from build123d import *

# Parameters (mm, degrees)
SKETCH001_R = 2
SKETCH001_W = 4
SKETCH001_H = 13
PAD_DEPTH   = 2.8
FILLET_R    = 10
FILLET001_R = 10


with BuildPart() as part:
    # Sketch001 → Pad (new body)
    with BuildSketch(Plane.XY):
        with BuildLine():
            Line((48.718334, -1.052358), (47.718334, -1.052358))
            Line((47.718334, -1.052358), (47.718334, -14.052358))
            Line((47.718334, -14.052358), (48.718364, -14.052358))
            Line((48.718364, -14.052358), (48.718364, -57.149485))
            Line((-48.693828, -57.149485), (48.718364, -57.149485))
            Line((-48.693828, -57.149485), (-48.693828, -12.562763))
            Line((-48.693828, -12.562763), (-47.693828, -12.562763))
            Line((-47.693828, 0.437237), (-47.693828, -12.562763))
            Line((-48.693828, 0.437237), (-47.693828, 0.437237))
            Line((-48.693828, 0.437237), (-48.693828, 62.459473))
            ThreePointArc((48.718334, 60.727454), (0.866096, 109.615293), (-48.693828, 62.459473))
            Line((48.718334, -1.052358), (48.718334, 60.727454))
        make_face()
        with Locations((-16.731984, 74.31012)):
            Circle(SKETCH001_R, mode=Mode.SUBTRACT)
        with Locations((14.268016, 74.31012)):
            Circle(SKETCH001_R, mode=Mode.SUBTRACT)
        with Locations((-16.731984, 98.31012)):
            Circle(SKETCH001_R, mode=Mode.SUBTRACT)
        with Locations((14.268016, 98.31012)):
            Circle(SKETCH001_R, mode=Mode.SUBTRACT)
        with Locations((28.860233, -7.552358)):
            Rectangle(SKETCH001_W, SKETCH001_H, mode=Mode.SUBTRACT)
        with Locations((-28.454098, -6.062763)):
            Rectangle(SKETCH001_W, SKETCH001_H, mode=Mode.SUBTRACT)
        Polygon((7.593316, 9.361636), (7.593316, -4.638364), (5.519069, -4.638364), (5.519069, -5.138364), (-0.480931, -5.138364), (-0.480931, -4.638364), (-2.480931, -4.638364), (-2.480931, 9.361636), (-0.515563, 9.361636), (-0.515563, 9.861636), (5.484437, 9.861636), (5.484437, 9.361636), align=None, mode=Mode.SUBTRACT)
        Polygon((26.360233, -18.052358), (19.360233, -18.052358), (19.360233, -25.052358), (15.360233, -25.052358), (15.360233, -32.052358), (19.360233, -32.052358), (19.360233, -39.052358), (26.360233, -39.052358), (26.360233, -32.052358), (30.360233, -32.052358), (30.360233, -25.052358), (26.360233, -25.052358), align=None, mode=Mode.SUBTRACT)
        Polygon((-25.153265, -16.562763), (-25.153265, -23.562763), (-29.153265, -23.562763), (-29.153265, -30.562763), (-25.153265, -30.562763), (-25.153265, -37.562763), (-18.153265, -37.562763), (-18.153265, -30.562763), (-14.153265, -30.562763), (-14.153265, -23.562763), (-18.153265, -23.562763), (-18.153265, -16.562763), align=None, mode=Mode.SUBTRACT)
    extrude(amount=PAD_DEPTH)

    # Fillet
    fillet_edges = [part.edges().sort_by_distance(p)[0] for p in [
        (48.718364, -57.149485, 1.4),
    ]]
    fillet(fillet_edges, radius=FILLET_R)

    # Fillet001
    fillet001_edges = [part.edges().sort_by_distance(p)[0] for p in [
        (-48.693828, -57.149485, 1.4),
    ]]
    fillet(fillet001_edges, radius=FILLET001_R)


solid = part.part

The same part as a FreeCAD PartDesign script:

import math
import FreeCAD as App
import Part
import Sketcher

V = App.Vector
Q = App.Units.Quantity


def edges_at(feature, points):
    """Names of the edges that pass closest to the given points."""
    edges = feature.Shape.Edges
    near = lambda p: min(range(len(edges)), key=lambda i: edges[i].distToShape(Part.Vertex(*p))[0])
    return sorted({f"Edge{near(p) + 1}" for p in points})


def add_polygon(sketch, points):
    """Adds a closed chain of lines whose ends are joined by coincident constraints."""
    first, n = sketch.GeometryCount, len(points)
    for a, b in zip(points, points[1:] + points[:1]):
        sketch.addGeometry(Part.LineSegment(App.Vector(*a, 0), App.Vector(*b, 0)), False)
    for i in range(n):
        sketch.addConstraint(Sketcher.Constraint("Coincident", first + i, 2, first + (i + 1) % n, 1))

doc = App.newDocument("Part")
body = doc.addObject("PartDesign::Body", "Body")

# Sketch on XY plane
sketch1 = body.newObject("Sketcher::SketchObject", "Sketch")
sketch1.AttachmentSupport = (doc.getObject("XY_Plane"), [""])
sketch1.MapMode = "FlatFace"
sketch1.addGeometry(Part.LineSegment(V(47.7, -1.1, 0), V(48.7, -1.1, 0)), False)  # 0
sketch1.addGeometry(Part.LineSegment(V(48.7, -1.1, 0), V(48.7, 60.7, 0)), False)  # 1
sketch1.addGeometry(Part.ArcOfCircle(Part.Circle(V(0, 60.9, 0), V(0, 0, 1), 48.7), math.radians(0), math.radians(178)), False)  # 2
sketch1.addGeometry(Part.LineSegment(V(-48.7, 62.5, 0), V(-48.7, 0.4, 0)), False)  # 3
sketch1.addGeometry(Part.LineSegment(V(-48.7, 0.4, 0), V(-47.7, 0.4, 0)), False)  # 4
sketch1.addGeometry(Part.LineSegment(V(-47.7, 0.4, 0), V(-47.7, -12.6, 0)), False)  # 5
sketch1.addGeometry(Part.LineSegment(V(-47.7, -12.6, 0), V(-48.7, -12.6, 0)), False)  # 6
sketch1.addGeometry(Part.LineSegment(V(-48.7, -12.6, 0), V(-48.7, -57.1, 0)), False)  # 7
sketch1.addGeometry(Part.LineSegment(V(-48.7, -57.1, 0), V(48.7, -57.1, 0)), False)  # 8
sketch1.addGeometry(Part.LineSegment(V(48.7, -57.1, 0), V(48.7, -14.1, 0)), False)  # 9
sketch1.addGeometry(Part.LineSegment(V(48.7, -14.1, 0), V(47.7, -14.1, 0)), False)  # 10
sketch1.addGeometry(Part.LineSegment(V(47.7, -14.1, 0), V(47.7, -1.1, 0)), False)  # 11
add_polygon(sketch1, [(26.4, -18.1), (26.4, -25.1), (30.4, -25.1), (30.4, -32.1), (26.4, -32.1), (26.4, -39.1), (19.4, -39.1), (19.4, -32.1), (15.4, -32.1), (15.4, -25.1), (19.4, -25.1), (19.4, -18.1)])  # lines 12-23
add_polygon(sketch1, [(26.9, -14.1), (26.9, -1.1), (30.9, -1.1), (30.9, -14.1)])  # lines 24-27
add_polygon(sketch1, [(7.6, 9.4), (7.6, -4.6), (5.5, -4.6), (5.5, -5.1), (-0.5, -5.1), (-0.5, -4.6), (-2.5, -4.6), (-2.5, 9.4), (-0.5, 9.4), (-0.5, 9.9), (5.5, 9.9), (5.5, 9.4)])  # lines 28-39
add_polygon(sketch1, [(-25.2, -16.6), (-18.2, -16.6), (-18.2, -23.6), (-14.2, -23.6), (-14.2, -30.6), (-18.2, -30.6), (-18.2, -37.6), (-25.2, -37.6), (-25.2, -30.6), (-29.2, -30.6), (-29.2, -23.6), (-25.2, -23.6)])  # lines 40-51
add_polygon(sketch1, [(-30.5, -12.6), (-30.5, 0.4), (-26.5, 0.4), (-26.5, -12.6)])  # lines 52-55
sketch1.addGeometry(Part.Circle(V(14.3, 74.3, 0), V(0, 0, 1), 2), False)  # 56
sketch1.addGeometry(Part.Circle(V(14.3, 98.3, 0), V(0, 0, 1), 2), False)  # 57
sketch1.addGeometry(Part.Circle(V(-16.7, 74.3, 0), V(0, 0, 1), 2), False)  # 58
sketch1.addGeometry(Part.Circle(V(-16.7, 98.3, 0), V(0, 0, 1), 2), False)  # 59
sketch1.addConstraint(Sketcher.Constraint("Coincident", 0, 2, 1, 1))
sketch1.addConstraint(Sketcher.Constraint("Coincident", 1, 2, 2, 1))
sketch1.addConstraint(Sketcher.Constraint("Coincident", 2, 2, 3, 1))
sketch1.addConstraint(Sketcher.Constraint("Coincident", 3, 2, 4, 1))
sketch1.addConstraint(Sketcher.Constraint("Coincident", 4, 2, 5, 1))
sketch1.addConstraint(Sketcher.Constraint("Coincident", 5, 2, 6, 1))
sketch1.addConstraint(Sketcher.Constraint("Coincident", 6, 2, 7, 1))
sketch1.addConstraint(Sketcher.Constraint("Coincident", 7, 2, 8, 1))
sketch1.addConstraint(Sketcher.Constraint("Coincident", 8, 2, 9, 1))
sketch1.addConstraint(Sketcher.Constraint("Coincident", 9, 2, 10, 1))
sketch1.addConstraint(Sketcher.Constraint("Coincident", 10, 2, 11, 1))
sketch1.addConstraint(Sketcher.Constraint("Coincident", 11, 2, 0, 1))
sketch1.addConstraint(Sketcher.Constraint("Horizontal", 0))
sketch1.addConstraint(Sketcher.Constraint("Vertical", 1))
sketch1.addConstraint(Sketcher.Constraint("Vertical", 3))
sketch1.addConstraint(Sketcher.Constraint("Horizontal", 4))
sketch1.addConstraint(Sketcher.Constraint("Vertical", 5))
sketch1.addConstraint(Sketcher.Constraint("Horizontal", 6))
sketch1.addConstraint(Sketcher.Constraint("Vertical", 7))
sketch1.addConstraint(Sketcher.Constraint("Horizontal", 8))
sketch1.addConstraint(Sketcher.Constraint("Vertical", 9))
sketch1.addConstraint(Sketcher.Constraint("Horizontal", 10))
sketch1.addConstraint(Sketcher.Constraint("Vertical", 11))
sketch1.addConstraint(Sketcher.Constraint("Vertical", 12))
sketch1.addConstraint(Sketcher.Constraint("Horizontal", 13))
sketch1.addConstraint(Sketcher.Constraint("Vertical", 14))
sketch1.addConstraint(Sketcher.Constraint("Horizontal", 15))
sketch1.addConstraint(Sketcher.Constraint("Vertical", 16))
sketch1.addConstraint(Sketcher.Constraint("Horizontal", 17))
sketch1.addConstraint(Sketcher.Constraint("Vertical", 18))
sketch1.addConstraint(Sketcher.Constraint("Horizontal", 19))
sketch1.addConstraint(Sketcher.Constraint("Vertical", 20))
sketch1.addConstraint(Sketcher.Constraint("Horizontal", 21))
sketch1.addConstraint(Sketcher.Constraint("Vertical", 22))
sketch1.addConstraint(Sketcher.Constraint("Horizontal", 23))
sketch1.addConstraint(Sketcher.Constraint("Vertical", 24))
sketch1.addConstraint(Sketcher.Constraint("Horizontal", 25))
sketch1.addConstraint(Sketcher.Constraint("Vertical", 26))
sketch1.addConstraint(Sketcher.Constraint("Horizontal", 27))
sketch1.addConstraint(Sketcher.Constraint("Vertical", 28))
sketch1.addConstraint(Sketcher.Constraint("Horizontal", 29))
sketch1.addConstraint(Sketcher.Constraint("Vertical", 30))
sketch1.addConstraint(Sketcher.Constraint("Horizontal", 31))
sketch1.addConstraint(Sketcher.Constraint("Vertical", 32))
sketch1.addConstraint(Sketcher.Constraint("Horizontal", 33))
sketch1.addConstraint(Sketcher.Constraint("Vertical", 34))
sketch1.addConstraint(Sketcher.Constraint("Horizontal", 35))
sketch1.addConstraint(Sketcher.Constraint("Vertical", 36))
sketch1.addConstraint(Sketcher.Constraint("Horizontal", 37))
sketch1.addConstraint(Sketcher.Constraint("Vertical", 38))
sketch1.addConstraint(Sketcher.Constraint("Horizontal", 39))
sketch1.addConstraint(Sketcher.Constraint("Horizontal", 40))
sketch1.addConstraint(Sketcher.Constraint("Vertical", 41))
sketch1.addConstraint(Sketcher.Constraint("Horizontal", 42))
sketch1.addConstraint(Sketcher.Constraint("Vertical", 43))
sketch1.addConstraint(Sketcher.Constraint("Horizontal", 44))
sketch1.addConstraint(Sketcher.Constraint("Vertical", 45))
sketch1.addConstraint(Sketcher.Constraint("Horizontal", 46))
sketch1.addConstraint(Sketcher.Constraint("Vertical", 47))
sketch1.addConstraint(Sketcher.Constraint("Horizontal", 48))
sketch1.addConstraint(Sketcher.Constraint("Vertical", 49))
sketch1.addConstraint(Sketcher.Constraint("Horizontal", 50))
sketch1.addConstraint(Sketcher.Constraint("Vertical", 51))
sketch1.addConstraint(Sketcher.Constraint("Vertical", 52))
sketch1.addConstraint(Sketcher.Constraint("Horizontal", 53))
sketch1.addConstraint(Sketcher.Constraint("Vertical", 54))
sketch1.addConstraint(Sketcher.Constraint("Horizontal", 55))
sketch1.addConstraint(Sketcher.Constraint("Equal", 56, 57))
sketch1.addConstraint(Sketcher.Constraint("Equal", 57, 58))
sketch1.addConstraint(Sketcher.Constraint("Equal", 58, 59))
sketch1.addConstraint(Sketcher.Constraint("PointOnObject", 2, 3, -2))
sketch1.addConstraint(Sketcher.Constraint("Horizontal", 56, 3, 58, 3))
sketch1.addConstraint(Sketcher.Constraint("Horizontal", 57, 3, 59, 3))
sketch1.addConstraint(Sketcher.Constraint("Horizontal", 15, 2, 18, 2))
sketch1.addConstraint(Sketcher.Constraint("Horizontal", 13, 2, 20, 2))
sketch1.addConstraint(Sketcher.Constraint("Horizontal", 11, 2, 24, 2))
sketch1.addConstraint(Sketcher.Constraint("Horizontal", 10, 2, 26, 2))
sketch1.addConstraint(Sketcher.Constraint("Horizontal", 29, 2, 32, 2))
sketch1.addConstraint(Sketcher.Constraint("Horizontal", 35, 2, 38, 2))
sketch1.addConstraint(Sketcher.Constraint("Horizontal", 44, 2, 47, 2))
sketch1.addConstraint(Sketcher.Constraint("Horizontal", 42, 2, 49, 2))
sketch1.addConstraint(Sketcher.Constraint("Horizontal", 4, 2, 52, 2))
sketch1.addConstraint(Sketcher.Constraint("Horizontal", 6, 2, 54, 2))
sketch1.addConstraint(Sketcher.Constraint("Vertical", 56, 3, 57, 3))
sketch1.addConstraint(Sketcher.Constraint("Vertical", 58, 3, 59, 3))
sketch1.addConstraint(Sketcher.Constraint("Vertical", 3, 2, 6, 2))
sketch1.addConstraint(Sketcher.Constraint("Vertical", 12, 2, 15, 2))
sketch1.addConstraint(Sketcher.Constraint("Vertical", 18, 2, 21, 2))
sketch1.addConstraint(Sketcher.Constraint("Vertical", 41, 2, 44, 2))
sketch1.addConstraint(Sketcher.Constraint("Vertical", 47, 2, 50, 2))
sketch1.addConstraint(Sketcher.Constraint("Equal", 0, 4))
sketch1.addConstraint(Sketcher.Constraint("Equal", 15, 19))
sketch1.addConstraint(Sketcher.Constraint("Equal", 21, 25))
sketch1.addConstraint(Sketcher.Constraint("Equal", 31, 37))
sketch1.addConstraint(Sketcher.Constraint("Equal", 23, 40))
sketch1.addConstraint(Sketcher.Constraint("Equal", 27, 42))
sketch1.addConstraint(Sketcher.Constraint("Equal", 44, 48))
sketch1.addConstraint(Sketcher.Constraint("Equal", 50, 53))
sketch1.addConstraint(Sketcher.Constraint("Equal", 5, 11))
sketch1.addConstraint(Sketcher.Constraint("Equal", 46, 12))
sketch1.addConstraint(Sketcher.Constraint("Equal", 12, 14))
sketch1.addConstraint(Sketcher.Constraint("Equal", 14, 16))
sketch1.addConstraint(Sketcher.Constraint("Equal", 32, 36))
sketch1.addConstraint(Sketcher.Constraint("Equal", 22, 41))
sketch1.addConstraint(Sketcher.Constraint("Equal", 41, 43))
sketch1.addConstraint(Sketcher.Constraint("Equal", 43, 45))
sketch1.addConstraint(Sketcher.Constraint("Diameter", 56, Q("4 mm")))
sketch1.addConstraint(Sketcher.Constraint("DistanceX", 0, 1, 0, 2, Q("1 mm")))
sketch1.addConstraint(Sketcher.Constraint("DistanceX", 13, 1, 13, 2, Q("4 mm")))
sketch1.addConstraint(Sketcher.Constraint("DistanceX", 17, 2, 17, 1, Q("7 mm")))
sketch1.addConstraint(Sketcher.Constraint("DistanceX", 31, 2, 31, 1, Q("6 mm")))
sketch1.addConstraint(Sketcher.Constraint("DistanceX", 33, 2, 33, 1, Q("2 mm")))
sketch1.addConstraint(Sketcher.Constraint("DistanceY", 5, 2, 5, 1, Q("13 mm")))
sketch1.addConstraint(Sketcher.Constraint("DistanceY", 28, 2, 28, 1, Q("14 mm")))
sketch1.addConstraint(Sketcher.Constraint("DistanceY", 30, 2, 30, 1, Q("0.5 mm")))
sketch1.addConstraint(Sketcher.Constraint("Radius", 2, Q("48.718655 mm")))
sketch1.addConstraint(Sketcher.Constraint("DistanceX", 10, 2, 10, 1, Q("1.00003 mm")))
sketch1.addConstraint(Sketcher.Constraint("DistanceX", 39, 1, 39, 2, Q("2.108879 mm")))
sketch1.addConstraint(Sketcher.Constraint("DistanceY", 7, 2, 7, 1, Q("44.586722 mm")))
sketch1.addConstraint(Sketcher.Constraint("DistanceX", 8, 1, 8, 2, Q("97.412192 mm")))
sketch1.addConstraint(Sketcher.Constraint("DistanceX", 29, 2, 29, 1, Q("2.074247 mm")))
sketch1.addConstraint(Sketcher.Constraint("DistanceY", 1, 1, 1, 2, Q("61.779812 mm")))
sketch1.addConstraint(Sketcher.Constraint("DistanceY", 3, 2, 3, 1, Q("62.022236 mm")))
sketch1.addConstraint(Sketcher.Constraint("DistanceY", 9, 1, 9, 2, Q("43.097127 mm")))
sketch1.addConstraint(Sketcher.Constraint("DistanceY", -1, 1, 56, 3, Q("74.31012 mm")))
sketch1.addConstraint(Sketcher.Constraint("DistanceY", -1, 1, 57, 3, Q("98.31012 mm")))
sketch1.addConstraint(Sketcher.Constraint("DistanceY", 12, 2, -1, 1, Q("25.052358 mm")))
sketch1.addConstraint(Sketcher.Constraint("DistanceX", -1, 1, 29, 2, Q("5.519069 mm")))
sketch1.addConstraint(Sketcher.Constraint("DistanceY", -1, 1, 2, 3, Q("60.904337 mm")))
sketch1.addConstraint(Sketcher.Constraint("DistanceX", -1, 1, 56, 3, Q("14.268016 mm")))
sketch1.addConstraint(Sketcher.Constraint("DistanceX", 58, 3, -1, 1, Q("16.731984 mm")))
sketch1.addConstraint(Sketcher.Constraint("DistanceX", -1, 1, 12, 2, Q("26.360233 mm")))
sketch1.addConstraint(Sketcher.Constraint("DistanceX", -1, 1, 24, 2, Q("26.860233 mm")))
sketch1.addConstraint(Sketcher.Constraint("DistanceY", 28, 2, -1, 1, Q("4.638364 mm")))
sketch1.addConstraint(Sketcher.Constraint("DistanceX", 40, 2, -1, 1, Q("18.153265 mm")))
sketch1.addConstraint(Sketcher.Constraint("DistanceY", 40, 2, -1, 1, Q("16.562763 mm")))
sketch1.addConstraint(Sketcher.Constraint("DistanceX", 52, 2, -1, 1, Q("30.454098 mm")))
pad1 = body.newObject("PartDesign::Pad", "Pad")
pad1.Profile = sketch1
pad1.Length = 2.8
doc.recompute()

fillet = body.newObject("PartDesign::Fillet", "Fillet")
fillet.Base = (pad1, edges_at(pad1, [(48.718, -57.149, 1.4)]))
fillet.Radius = 10
doc.recompute()

fillet2 = body.newObject("PartDesign::Fillet", "Fillet001")
fillet2.Base = (fillet, edges_at(fillet, [(-48.694, -57.149, 1.4)]))
fillet2.Radius = 10

doc.recompute()
